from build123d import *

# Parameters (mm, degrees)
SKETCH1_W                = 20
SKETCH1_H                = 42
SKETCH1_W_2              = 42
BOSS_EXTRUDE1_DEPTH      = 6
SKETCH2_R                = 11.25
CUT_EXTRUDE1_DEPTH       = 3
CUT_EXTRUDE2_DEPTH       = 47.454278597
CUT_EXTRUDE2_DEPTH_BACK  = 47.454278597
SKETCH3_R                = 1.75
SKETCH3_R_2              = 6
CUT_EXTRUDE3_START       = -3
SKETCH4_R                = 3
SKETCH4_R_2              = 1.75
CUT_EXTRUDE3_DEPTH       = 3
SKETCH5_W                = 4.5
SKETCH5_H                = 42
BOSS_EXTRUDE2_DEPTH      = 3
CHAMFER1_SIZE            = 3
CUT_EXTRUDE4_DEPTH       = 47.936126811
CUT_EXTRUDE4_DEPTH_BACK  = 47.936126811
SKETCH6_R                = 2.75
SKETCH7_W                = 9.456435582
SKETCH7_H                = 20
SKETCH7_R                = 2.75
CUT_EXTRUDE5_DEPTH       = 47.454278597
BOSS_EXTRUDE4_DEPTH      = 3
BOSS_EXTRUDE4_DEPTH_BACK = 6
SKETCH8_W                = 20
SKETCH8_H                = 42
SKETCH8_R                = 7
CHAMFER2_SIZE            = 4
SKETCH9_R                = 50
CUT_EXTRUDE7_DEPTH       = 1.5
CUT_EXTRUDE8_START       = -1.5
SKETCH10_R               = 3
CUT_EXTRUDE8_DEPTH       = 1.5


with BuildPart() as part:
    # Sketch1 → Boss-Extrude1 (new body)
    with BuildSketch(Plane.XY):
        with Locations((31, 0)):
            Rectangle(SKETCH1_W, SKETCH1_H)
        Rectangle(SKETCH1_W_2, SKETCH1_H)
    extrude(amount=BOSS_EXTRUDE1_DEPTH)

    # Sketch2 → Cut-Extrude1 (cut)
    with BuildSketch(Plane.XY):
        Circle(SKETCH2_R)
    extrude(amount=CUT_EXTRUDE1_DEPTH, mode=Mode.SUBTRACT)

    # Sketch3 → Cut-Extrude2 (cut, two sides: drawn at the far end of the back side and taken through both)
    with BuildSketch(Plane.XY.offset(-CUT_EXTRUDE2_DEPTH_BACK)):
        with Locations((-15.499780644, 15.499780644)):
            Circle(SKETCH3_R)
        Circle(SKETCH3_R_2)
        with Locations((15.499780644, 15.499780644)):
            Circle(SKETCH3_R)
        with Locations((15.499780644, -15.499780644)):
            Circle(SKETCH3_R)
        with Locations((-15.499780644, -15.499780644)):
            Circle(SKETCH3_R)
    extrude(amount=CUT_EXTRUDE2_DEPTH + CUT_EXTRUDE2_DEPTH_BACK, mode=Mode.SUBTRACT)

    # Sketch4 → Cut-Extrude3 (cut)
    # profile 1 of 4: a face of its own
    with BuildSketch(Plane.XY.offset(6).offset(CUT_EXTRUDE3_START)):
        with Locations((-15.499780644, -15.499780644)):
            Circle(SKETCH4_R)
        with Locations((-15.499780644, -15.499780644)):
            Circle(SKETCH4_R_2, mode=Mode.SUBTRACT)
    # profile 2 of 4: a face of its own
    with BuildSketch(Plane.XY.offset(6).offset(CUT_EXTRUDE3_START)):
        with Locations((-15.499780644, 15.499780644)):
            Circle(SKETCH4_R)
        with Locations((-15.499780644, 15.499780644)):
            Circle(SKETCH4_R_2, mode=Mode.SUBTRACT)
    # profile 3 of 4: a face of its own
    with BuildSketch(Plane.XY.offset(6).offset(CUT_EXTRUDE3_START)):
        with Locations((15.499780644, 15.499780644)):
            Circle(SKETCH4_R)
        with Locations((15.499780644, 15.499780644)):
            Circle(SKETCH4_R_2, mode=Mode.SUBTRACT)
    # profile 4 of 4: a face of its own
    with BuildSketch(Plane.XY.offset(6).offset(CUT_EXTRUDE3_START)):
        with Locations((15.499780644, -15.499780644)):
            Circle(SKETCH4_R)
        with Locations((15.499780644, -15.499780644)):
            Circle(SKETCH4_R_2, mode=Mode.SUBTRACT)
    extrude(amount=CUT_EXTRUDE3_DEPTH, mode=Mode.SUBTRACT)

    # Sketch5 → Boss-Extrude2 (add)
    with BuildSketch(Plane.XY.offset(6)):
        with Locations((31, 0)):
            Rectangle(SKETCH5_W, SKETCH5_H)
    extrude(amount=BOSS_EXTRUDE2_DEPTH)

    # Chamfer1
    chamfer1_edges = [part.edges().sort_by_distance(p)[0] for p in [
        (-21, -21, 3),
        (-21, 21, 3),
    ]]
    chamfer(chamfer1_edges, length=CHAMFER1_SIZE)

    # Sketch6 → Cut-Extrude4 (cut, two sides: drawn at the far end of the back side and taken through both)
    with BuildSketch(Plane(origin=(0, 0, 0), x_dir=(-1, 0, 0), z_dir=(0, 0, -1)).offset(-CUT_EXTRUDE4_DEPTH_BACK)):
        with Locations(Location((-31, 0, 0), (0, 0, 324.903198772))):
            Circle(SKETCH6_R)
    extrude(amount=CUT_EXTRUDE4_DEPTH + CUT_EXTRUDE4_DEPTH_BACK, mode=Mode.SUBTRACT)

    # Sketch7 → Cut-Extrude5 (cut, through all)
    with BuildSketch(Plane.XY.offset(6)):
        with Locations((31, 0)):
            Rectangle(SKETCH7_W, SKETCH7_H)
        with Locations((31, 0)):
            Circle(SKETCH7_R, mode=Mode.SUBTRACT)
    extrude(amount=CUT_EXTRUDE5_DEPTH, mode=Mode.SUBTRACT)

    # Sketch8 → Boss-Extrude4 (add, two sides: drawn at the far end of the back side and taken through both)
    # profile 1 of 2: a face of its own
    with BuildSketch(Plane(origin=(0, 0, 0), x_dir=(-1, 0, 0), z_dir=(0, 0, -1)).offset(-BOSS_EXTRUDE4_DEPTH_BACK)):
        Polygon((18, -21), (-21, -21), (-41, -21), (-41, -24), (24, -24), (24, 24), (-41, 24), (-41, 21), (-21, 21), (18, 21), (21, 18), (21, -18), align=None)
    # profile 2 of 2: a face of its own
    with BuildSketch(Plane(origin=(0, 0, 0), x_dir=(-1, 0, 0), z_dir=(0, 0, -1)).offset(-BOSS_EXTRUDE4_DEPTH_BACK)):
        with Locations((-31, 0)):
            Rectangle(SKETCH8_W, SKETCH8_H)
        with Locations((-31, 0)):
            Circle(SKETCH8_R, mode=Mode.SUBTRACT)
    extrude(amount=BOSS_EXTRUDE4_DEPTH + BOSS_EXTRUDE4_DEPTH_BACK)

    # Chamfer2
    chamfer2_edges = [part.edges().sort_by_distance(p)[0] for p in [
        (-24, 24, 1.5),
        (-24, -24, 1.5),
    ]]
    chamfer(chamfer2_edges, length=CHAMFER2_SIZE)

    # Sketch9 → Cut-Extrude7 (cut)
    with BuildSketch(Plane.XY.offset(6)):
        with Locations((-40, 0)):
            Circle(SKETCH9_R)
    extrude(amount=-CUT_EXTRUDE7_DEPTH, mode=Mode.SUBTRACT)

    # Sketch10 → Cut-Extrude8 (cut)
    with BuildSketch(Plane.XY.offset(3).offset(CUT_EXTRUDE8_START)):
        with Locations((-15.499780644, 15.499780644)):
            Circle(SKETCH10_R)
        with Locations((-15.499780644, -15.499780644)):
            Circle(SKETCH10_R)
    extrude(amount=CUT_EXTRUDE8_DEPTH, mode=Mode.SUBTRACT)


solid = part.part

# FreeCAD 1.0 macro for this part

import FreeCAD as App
import Part
import Sketcher
from FreeCAD import Vector
Q = App.Units.Quantity


def edges_at(feature, points):
    """Names of the edges that pass closest to the given points."""
    edges = feature.Shape.Edges
    near = lambda p: min(range(len(edges)), key=lambda i: edges[i].distToShape(Part.Vertex(*p))[0])
    return sorted({f"Edge{near(p) + 1}" for p in points})


def add_polygon(sketch, points):
    """Adds a closed chain of lines whose ends are joined by coincident constraints."""
    first, n = sketch.GeometryCount, len(points)
    for a, b in zip(points, points[1:] + points[:1]):
        sketch.addGeometry(Part.LineSegment(App.Vector(*a, 0), App.Vector(*b, 0)), False)
    for i in range(n):
        sketch.addConstraint(Sketcher.Constraint("Coincident", first + i, 2, first + (i + 1) % n, 1))

doc = App.newDocument("Part")
params = doc.addObject("Spreadsheet::Sheet", "Params")
for row, (alias, value) in enumerate([
    ("sketch1_width", "62 mm"),
    ("sketch1_height", "42 mm"),
    ("pad1_length", "6 mm"),
    ("sketch2_diameter", "22.5 mm"),
    ("pocket1_length", "3 mm"),
    ("sketch3_diameter", "12 mm"),
    ("sketch3_diameter2", "3.5 mm"),
    ("sketch4_diameter", "6 mm"),
    ("sketch4_diameter2", "3.5 mm"),
    ("pocket3_length", "3 mm"),
    ("sketch5_height", "42 mm"),
    ("sketch5_width", "4.5 mm"),
    ("pad2_length", "3 mm"),
    ("chamfer_size", "3 mm"),
    ("sketch6_diameter", "5.5 mm"),
    ("sketch7_diameter", "5.5 mm"),
    ("sketch7_height", "20 mm"),
    ("sketch8_diameter", "14 mm"),
    ("sketch8_width", "65 mm"),
    ("sketch8_width2", "39 mm"),
    ("sketch8_height", "48 mm"),
    ("sketch8_height2", "42 mm"),
    ("pad3_length", "3 mm"),
    ("pad3_length2", "6 mm"),
    ("chamfer2_size", "4 mm"),
    ("sketch9_diameter", "100 mm"),
    ("pocket6_length", "1.5 mm"),
    ("sketch10_diameter", "6 mm"),
    ("pocket7_length", "1.5 mm"),
], start=1):
    params.set(f"A{row}", alias)
    params.set(f"B{row}", "=" + value)
    params.setAlias(f"B{row}", alias)

body = doc.addObject("PartDesign::Body", "Body")

# Sketch on XY plane
sketch1 = doc.addObject("Sketcher::SketchObject", "Sketch")
body.addObject(sketch1)
sketch1.AttachmentSupport = (doc.XY_Plane, [""])
sketch1.MapMode = "FlatFace"
add_polygon(sketch1, [(41, -21), (41, 21), (-21, 21), (-21, -21)])  # lines 0-3
sketch1.addConstraint(Sketcher.Constraint("Vertical", 0))
sketch1.addConstraint(Sketcher.Constraint("Horizontal", 1))
sketch1.addConstraint(Sketcher.Constraint("Vertical", 2))
sketch1.addConstraint(Sketcher.Constraint("Horizontal", 3))
sketch1.addConstraint(Sketcher.Constraint("DistanceX", 1, 2, 1, 1, Q("62 mm")))
sketch1.addConstraint(Sketcher.Constraint("DistanceY", 0, 1, 0, 2, Q("42 mm")))
sketch1.addConstraint(Sketcher.Constraint("DistanceX", -1, 1, 0, 2, Q("41 mm")))
sketch1.addConstraint(Sketcher.Constraint("DistanceY", -1, 1, 0, 2, Q("21 mm")))
sketch1.setExpression("Constraints[8]", "Params.sketch1_width")
sketch1.setExpression("Constraints[9]", "Params.sketch1_height")
pad1 = doc.addObject("PartDesign::Pad", "Pad")
body.addObject(pad1)
pad1.Profile = sketch1
pad1.setExpression("Length", "Params.pad1_length")

# Sketch on XY plane
sketch2 = doc.addObject("Sketcher::SketchObject", "Sketch001")
body.addObject(sketch2)
sketch2.AttachmentSupport = (doc.XY_Plane, [""])
sketch2.MapMode = "FlatFace"
sketch2.addGeometry(Part.Circle(Vector(0, 0, 0), Vector(0, 0, 1), 11.25), False)
sketch2.addConstraint(Sketcher.Constraint("Coincident", 0, 3, -1, 1))
sketch2.addConstraint(Sketcher.Constraint("Diameter", 0, Q("22.5 mm")))
sketch2.setExpression("Constraints[1]", "Params.sketch2_diameter")
pocket1 = doc.addObject("PartDesign::Pocket", "Pocket")
body.addObject(pocket1)
pocket1.Profile = sketch2
pocket1.setExpression("Length", "Params.pocket1_length")
pocket1.Reversed = True

# Sketch on XY plane
sketch3 = doc.addObject("Sketcher::SketchObject", "Sketch002")
body.addObject(sketch3)
sketch3.AttachmentSupport = (doc.XY_Plane, [""])
sketch3.MapMode = "FlatFace"
sketch3.addGeometry(Part.Circle(Vector(-15.499781, 15.499781, 0), Vector(0, 0, 1), 1.75), False)
sketch3.addGeometry(Part.Circle(Vector(0, 0, 0), Vector(0, 0, 1), 6), False)
sketch3.addGeometry(Part.Circle(Vector(15.499781, 15.499781, 0), Vector(0, 0, 1), 1.75), False)
sketch3.addGeometry(Part.Circle(Vector(15.499781, -15.499781, 0), Vector(0, 0, 1), 1.75), False)
sketch3.addGeometry(Part.Circle(Vector(-15.499781, -15.499781, 0), Vector(0, 0, 1), 1.75), False)
sketch3.addConstraint(Sketcher.Constraint("Coincident", 1, 3, -1, 1))
sketch3.addConstraint(Sketcher.Constraint("Equal", 0, 2))
sketch3.addConstraint(Sketcher.Constraint("Equal", 2, 3))
sketch3.addConstraint(Sketcher.Constraint("Equal", 3, 4))
sketch3.addConstraint(Sketcher.Constraint("Symmetric", 0, 3, 3, 3, -1, 1))
sketch3.addConstraint(Sketcher.Constraint("Symmetric", 2, 3, 4, 3, -1, 1))
sketch3.addConstraint(Sketcher.Constraint("Symmetric", 0, 3, 2, 3, -2))
sketch3.addConstraint(Sketcher.Constraint("Diameter", 1, Q("12 mm")))
sketch3.addConstraint(Sketcher.Constraint("Diameter", 0, Q("3.5 mm")))
sketch3.addConstraint(Sketcher.Constraint("DistanceX", 0, 3, -1, 1, Q("15.499781 mm")))
sketch3.addConstraint(Sketcher.Constraint("DistanceY", -1, 1, 0, 3, Q("15.499781 mm")))
sketch3.setExpression("Constraints[7]", "Params.sketch3_diameter")
sketch3.setExpression("Constraints[8]", "Params.sketch3_diameter2")
pocket2 = doc.addObject("PartDesign::Pocket", "Pocket001")
body.addObject(pocket2)
pocket2.Profile = sketch3
pocket2.Type = "ThroughAll"
pocket2.Midplane = True

# Sketch on XY plane
sketch4 = doc.addObject("Sketcher::SketchObject", "Sketch003")
body.addObject(sketch4)
sketch4.AttachmentSupport = (doc.XY_Plane, [""])
sketch4.MapMode = "FlatFace"
sketch4.AttachmentOffset = App.Placement(Vector(0, 0, 3), App.Rotation())
sketch4.addGeometry(Part.Circle(Vector(-15.499781, -15.499781, 0), Vector(0, 0, 1), 3), False)
sketch4.addGeometry(Part.Circle(Vector(-15.499781, -15.499781, 0), Vector(0, 0, 1), 1.75), False)
sketch4.addGeometry(Part.Circle(Vector(-15.499781, 15.499781, 0), Vector(0, 0, 1), 3), False)
sketch4.addGeometry(Part.Circle(Vector(-15.499781, 15.499781, 0), Vector(0, 0, 1), 1.75), False)
sketch4.addGeometry(Part.Circle(Vector(15.499781, 15.499781, 0), Vector(0, 0, 1), 3), False)
sketch4.addGeometry(Part.Circle(Vector(15.499781, 15.499781, 0), Vector(0, 0, 1), 1.75), False)
sketch4.addGeometry(Part.Circle(Vector(15.499781, -15.499781, 0), Vector(0, 0, 1), 3), False)
sketch4.addGeometry(Part.Circle(Vector(15.499781, -15.499781, 0), Vector(0, 0, 1), 1.75), False)
sketch4.addConstraint(Sketcher.Constraint("Coincident", 1, 3, 0, 3))
sketch4.addConstraint(Sketcher.Constraint("Coincident", 3, 3, 2, 3))
sketch4.addConstraint(Sketcher.Constraint("Coincident", 5, 3, 4, 3))
sketch4.addConstraint(Sketcher.Constraint("Coincident", 7, 3, 6, 3))
sketch4.addConstraint(Sketcher.Constraint("Equal", 0, 2))
sketch4.addConstraint(Sketcher.Constraint("Equal", 1, 3))
sketch4.addConstraint(Sketcher.Constraint("Equal", 2, 4))
sketch4.addConstraint(Sketcher.Constraint("Equal", 3, 5))
sketch4.addConstraint(Sketcher.Constraint("Equal", 4, 6))
sketch4.addConstraint(Sketcher.Constraint("Equal", 5, 7))
sketch4.addConstraint(Sketcher.Constraint("Symmetric", 0, 3, 4, 3, -1, 1))
sketch4.addConstraint(Sketcher.Constraint("Symmetric", 2, 3, 6, 3, -1, 1))
sketch4.addConstraint(Sketcher.Constraint("Symmetric", 2, 3, 4, 3, -2))
sketch4.addConstraint(Sketcher.Constraint("Diameter", 0, Q("6 mm")))
sketch4.addConstraint(Sketcher.Constraint("Diameter", 1, Q("3.5 mm")))
sketch4.addConstraint(Sketcher.Constraint("DistanceX", 0, 3, -1, 1, Q("15.499781 mm")))
sketch4.addConstraint(Sketcher.Constraint("DistanceY", 0, 3, -1, 1, Q("15.499781 mm")))
sketch4.setExpression("Constraints[13]", "Params.sketch4_diameter")
sketch4.setExpression("Constraints[14]", "Params.sketch4_diameter2")
pocket3 = doc.addObject("PartDesign::Pocket", "Pocket002")
body.addObject(pocket3)
pocket3.Profile = sketch4
pocket3.setExpression("Length", "Params.pocket3_length")
pocket3.Reversed = True

# Sketch on XY plane
sketch5 = doc.addObject("Sketcher::SketchObject", "Sketch004")
body.addObject(sketch5)
sketch5.AttachmentSupport = (doc.XY_Plane, [""])
sketch5.MapMode = "FlatFace"
sketch5.AttachmentOffset = App.Placement(Vector(0, 0, 6), App.Rotation())
add_polygon(sketch5, [(28.75, 21), (28.75, -21), (33.25, -21), (33.25, 21)])  # lines 0-3
sketch5.addConstraint(Sketcher.Constraint("Vertical", 0))
sketch5.addConstraint(Sketcher.Constraint("Horizontal", 1))
sketch5.addConstraint(Sketcher.Constraint("Vertical", 2))
sketch5.addConstraint(Sketcher.Constraint("Horizontal", 3))
sketch5.addConstraint(Sketcher.Constraint("DistanceY", 0, 2, 0, 1, Q("42 mm")))
sketch5.addConstraint(Sketcher.Constraint("DistanceX", 1, 1, 1, 2, Q("4.5 mm")))
sketch5.addConstraint(Sketcher.Constraint("DistanceY", 0, 2, -1, 1, Q("21 mm")))
sketch5.addConstraint(Sketcher.Constraint("DistanceX", -1, 1, 0, 2, Q("28.75 mm")))
sketch5.setExpression("Constraints[8]", "Params.sketch5_height")
sketch5.setExpression("Constraints[9]", "Params.sketch5_width")
pad2 = doc.addObject("PartDesign::Pad", "Pad001")
body.addObject(pad2)
pad2.Profile = sketch5
pad2.setExpression("Length", "Params.pad2_length")
doc.recompute()

chamfer = doc.addObject("PartDesign::Chamfer", "Chamfer")
body.addObject(chamfer)
chamfer.Base = (pad2, edges_at(pad2, [(-21, -21, 3), (-21, 21, 3)]))
chamfer.setExpression("Size", "Params.chamfer_size")

# Sketch on XY plane
sketch6 = doc.addObject("Sketcher::SketchObject", "Sketch005")
body.addObject(sketch6)
sketch6.AttachmentSupport = (doc.XY_Plane, [""])
sketch6.MapMode = "FlatFace"
sketch6.addGeometry(Part.Circle(Vector(31, 0, 0), Vector(0, 0, 1), 2.75), False)
sketch6.addConstraint(Sketcher.Constraint("PointOnObject", 0, 3, -1))
sketch6.addConstraint(Sketcher.Constraint("Diameter", 0, Q("5.5 mm")))
sketch6.addConstraint(Sketcher.Constraint("DistanceX", -1, 1, 0, 3, Q("31 mm")))
sketch6.setExpression("Constraints[1]", "Params.sketch6_diameter")
pocket4 = doc.addObject("PartDesign::Pocket", "Pocket003")
body.addObject(pocket4)
pocket4.Profile = sketch6
pocket4.Type = "ThroughAll"
pocket4.Midplane = True

# Sketch on XY plane
sketch7 = doc.addObject("Sketcher::SketchObject", "Sketch006")
body.addObject(sketch7)
sketch7.AttachmentSupport = (doc.XY_Plane, [""])
sketch7.MapMode = "FlatFace"
sketch7.AttachmentOffset = App.Placement(Vector(0, 0, 6), App.Rotation())
add_polygon(sketch7, [(26.271782, 10), (26.271782, -10), (35.728218, -10), (35.728218, 10)])  # lines 0-3
sketch7.addGeometry(Part.Circle(Vector(31, 0, 0), Vector(0, 0, 1), 2.75), False)  # 4
sketch7.addConstraint(Sketcher.Constraint("Vertical", 0))
sketch7.addConstraint(Sketcher.Constraint("Horizontal", 1))
sketch7.addConstraint(Sketcher.Constraint("Vertical", 2))
sketch7.addConstraint(Sketcher.Constraint("Horizontal", 3))
sketch7.addConstraint(Sketcher.Constraint("PointOnObject", 4, 3, -1))
sketch7.addConstraint(Sketcher.Constraint("Diameter", 4, Q("5.5 mm")))
sketch7.addConstraint(Sketcher.Constraint("DistanceY", 0, 2, 0, 1, Q("20 mm")))
sketch7.addConstraint(Sketcher.Constraint("DistanceX", -1, 1, 4, 3, Q("31 mm")))
sketch7.addConstraint(Sketcher.Constraint("DistanceY", 0, 2, -1, 1, Q("10 mm")))
sketch7.addConstraint(Sketcher.Constraint("DistanceX", 1, 1, 1, 2, Q("9.456436 mm")))
sketch7.addConstraint(Sketcher.Constraint("DistanceX", -1, 1, 0, 2, Q("26.271782 mm")))
sketch7.setExpression("Constraints[9]", "Params.sketch7_diameter")
sketch7.setExpression("Constraints[10]", "Params.sketch7_height")
pocket5 = doc.addObject("PartDesign::Pocket", "Pocket004")
body.addObject(pocket5)
pocket5.Profile = sketch7
pocket5.Type = "ThroughAll"
pocket5.Reversed = True

# Sketch on XY plane
sketch8 = doc.addObject("Sketcher::SketchObject", "Sketch007")
body.addObject(sketch8)
sketch8.AttachmentSupport = (doc.XY_Plane, [""])
sketch8.MapMode = "FlatFace"
add_polygon(sketch8, [(41, -24), (-24, -24), (-24, 24), (41, 24)])  # lines 0-3
add_polygon(sketch8, [(-18, -21), (21, -21), (21, 21), (-18, 21), (-21, 18), (-21, -18)])  # lines 4-9
sketch8.addGeometry(Part.Circle(Vector(31, 0, 0), Vector(0, 0, 1), 7), False)  # 10
sketch8.addConstraint(Sketcher.Constraint("Horizontal", 0))
sketch8.addConstraint(Sketcher.Constraint("Vertical", 1))
sketch8.addConstraint(Sketcher.Constraint("Horizontal", 2))
sketch8.addConstraint(Sketcher.Constraint("Vertical", 3))
sketch8.addConstraint(Sketcher.Constraint("Horizontal", 4))
sketch8.addConstraint(Sketcher.Constraint("Vertical", 5))
sketch8.addConstraint(Sketcher.Constraint("Horizontal", 6))
sketch8.addConstraint(Sketcher.Constraint("Vertical", 8))
sketch8.addConstraint(Sketcher.Constraint("Symmetric", 6, 2, 9, 2, -1))
sketch8.addConstraint(Sketcher.Constraint("PointOnObject", 10, 3, -1))
sketch8.addConstraint(Sketcher.Constraint("Perpendicular", 7, 9))
sketch8.addConstraint(Sketcher.Constraint("Equal", 7, 9))
sketch8.addConstraint(Sketcher.Constraint("Diameter", 10, Q("14 mm")))
sketch8.addConstraint(Sketcher.Constraint("DistanceX", 0, 2, 0, 1, Q("65 mm")))
sketch8.addConstraint(Sketcher.Constraint("DistanceX", 4, 1, 4, 2, Q("39 mm")))
sketch8.addConstraint(Sketcher.Constraint("DistanceY", 1, 1, 1, 2, Q("48 mm")))
sketch8.addConstraint(Sketcher.Constraint("DistanceY", 5, 1, 5, 2, Q("42 mm")))
sketch8.addConstraint(Sketcher.Constraint("DistanceY", 8, 2, 8, 1, Q("36 mm")))
sketch8.addConstraint(Sketcher.Constraint("DistanceX", -1, 1, 10, 3, Q("31 mm")))
sketch8.addConstraint(Sketcher.Constraint("DistanceX", 0, 2, -1, 1, Q("24 mm")))
sketch8.addConstraint(Sketcher.Constraint("DistanceY", 0, 2, -1, 1, Q("24 mm")))
sketch8.addConstraint(Sketcher.Constraint("DistanceX", -1, 1, 4, 2, Q("21 mm")))
sketch8.setExpression("Constraints[22]", "Params.sketch8_diameter")
sketch8.setExpression("Constraints[23]", "Params.sketch8_width")
sketch8.setExpression("Constraints[24]", "Params.sketch8_width2")
sketch8.setExpression("Constraints[25]", "Params.sketch8_height")
sketch8.setExpression("Constraints[26]", "Params.sketch8_height2")
pad3 = doc.addObject("PartDesign::Pad", "Pad002")
body.addObject(pad3)
pad3.Profile = sketch8
pad3.Type = "TwoLengths"
pad3.setExpression("Length", "Params.pad3_length")
pad3.setExpression("Length2", "Params.pad3_length2")
pad3.Reversed = True
doc.recompute()

chamfer2 = doc.addObject("PartDesign::Chamfer", "Chamfer001")
body.addObject(chamfer2)
chamfer2.Base = (pad3, edges_at(pad3, [(-24, 24, 1.5), (-24, -24, 1.5)]))
chamfer2.setExpression("Size", "Params.chamfer2_size")

# Sketch on XY plane
sketch9 = doc.addObject("Sketcher::SketchObject", "Sketch008")
body.addObject(sketch9)
sketch9.AttachmentSupport = (doc.XY_Plane, [""])
sketch9.MapMode = "FlatFace"
sketch9.AttachmentOffset = App.Placement(Vector(0, 0, 6), App.Rotation())
sketch9.addGeometry(Part.Circle(Vector(-40, 0, 0), Vector(0, 0, 1), 50), False)
sketch9.addConstraint(Sketcher.Constraint("PointOnObject", 0, 3, -1))
sketch9.addConstraint(Sketcher.Constraint("Diameter", 0, Q("100 mm")))
sketch9.addConstraint(Sketcher.Constraint("DistanceX", 0, 3, -1, 1, Q("40 mm")))
sketch9.setExpression("Constraints[1]", "Params.sketch9_diameter")
pocket6 = doc.addObject("PartDesign::Pocket", "Pocket005")
body.addObject(pocket6)
pocket6.Profile = sketch9
pocket6.setExpression("Length", "Params.pocket6_length")

# Sketch on XY plane
sketch10 = doc.addObject("Sketcher::SketchObject", "Sketch009")
body.addObject(sketch10)
sketch10.AttachmentSupport = (doc.XY_Plane, [""])
sketch10.MapMode = "FlatFace"
sketch10.AttachmentOffset = App.Placement(Vector(0, 0, 1.5), App.Rotation())
sketch10.addGeometry(Part.Circle(Vector(-15.499781, 15.499781, 0), Vector(0, 0, 1), 3), False)
sketch10.addGeometry(Part.Circle(Vector(-15.499781, -15.499781, 0), Vector(0, 0, 1), 3), False)
sketch10.addConstraint(Sketcher.Constraint("Equal", 0, 1))
sketch10.addConstraint(Sketcher.Constraint("Symmetric", 0, 3, 1, 3, -1))
sketch10.addConstraint(Sketcher.Constraint("Diameter", 0, Q("6 mm")))
sketch10.addConstraint(Sketcher.Constraint("DistanceX", 0, 3, -1, 1, Q("15.499781 mm")))
sketch10.addConstraint(Sketcher.Constraint("DistanceY", -1, 1, 0, 3, Q("15.499781 mm")))
sketch10.setExpression("Constraints[2]", "Params.sketch10_diameter")
pocket7 = doc.addObject("PartDesign::Pocket", "Pocket006")
body.addObject(pocket7)
pocket7.Profile = sketch10
pocket7.setExpression("Length", "Params.pocket7_length")
pocket7.Reversed = True

doc.recompute()
